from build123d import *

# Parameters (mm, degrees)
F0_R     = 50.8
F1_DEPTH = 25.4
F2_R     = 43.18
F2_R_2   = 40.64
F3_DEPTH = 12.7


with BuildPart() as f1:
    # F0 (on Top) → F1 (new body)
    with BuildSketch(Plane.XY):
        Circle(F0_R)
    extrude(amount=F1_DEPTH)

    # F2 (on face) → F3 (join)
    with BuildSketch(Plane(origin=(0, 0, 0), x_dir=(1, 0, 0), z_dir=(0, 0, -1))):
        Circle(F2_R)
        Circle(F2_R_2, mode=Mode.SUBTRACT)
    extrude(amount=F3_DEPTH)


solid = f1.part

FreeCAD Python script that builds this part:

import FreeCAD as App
import Part
import Sketcher

V = App.Vector
Q = App.Units.Quantity

doc = App.newDocument("Part")
body = doc.addObject("PartDesign::Body", "Body")

sketch1 = body.newObject("Sketcher::SketchObject", "Sketch")
sketch1.AttachmentSupport = (doc.getObject("XY_Plane"), [""])
sketch1.MapMode = "FlatFace"
sketch1.addGeometry(Part.Circle(V(0, 0, 0), V(0, 0, 1), 50.8), False)
sketch1.addConstraint([
    Sketcher.Constraint("Coincident", 0, 3, -1, 1),
    Sketcher.Constraint("Diameter", 0, Q("4 in")),
])
pad1 = body.newObject("PartDesign::Pad", "Pad")
pad1.Profile = sketch1
pad1.Length = Q("1 in")

sketch2 = body.newObject("Sketcher::SketchObject", "Sketch001")
sketch2.AttachmentSupport = (doc.getObject("XY_Plane"), [""])
sketch2.MapMode = "FlatFace"
sketch2.addGeometry([
    Part.Circle(V(0, 0, 0), V(0, 0, 1), 43.18),
    Part.Circle(V(0, 0, 0), V(0, 0, 1), 40.64),
], False)
sketch2.addConstraint([
    Sketcher.Constraint("Coincident", 0, 3, -1, 1),
    Sketcher.Constraint("Coincident", 1, 3, -1, 1),
    Sketcher.Constraint("Diameter", 0, Q("3.4 in")),
    Sketcher.Constraint("Diameter", 1, Q("3.2 in")),
])
pad2 = body.newObject("PartDesign::Pad", "Pad001")
pad2.Profile = sketch2
pad2.Length = Q("0.5 in")
pad2.Reversed = True

doc.recompute()
